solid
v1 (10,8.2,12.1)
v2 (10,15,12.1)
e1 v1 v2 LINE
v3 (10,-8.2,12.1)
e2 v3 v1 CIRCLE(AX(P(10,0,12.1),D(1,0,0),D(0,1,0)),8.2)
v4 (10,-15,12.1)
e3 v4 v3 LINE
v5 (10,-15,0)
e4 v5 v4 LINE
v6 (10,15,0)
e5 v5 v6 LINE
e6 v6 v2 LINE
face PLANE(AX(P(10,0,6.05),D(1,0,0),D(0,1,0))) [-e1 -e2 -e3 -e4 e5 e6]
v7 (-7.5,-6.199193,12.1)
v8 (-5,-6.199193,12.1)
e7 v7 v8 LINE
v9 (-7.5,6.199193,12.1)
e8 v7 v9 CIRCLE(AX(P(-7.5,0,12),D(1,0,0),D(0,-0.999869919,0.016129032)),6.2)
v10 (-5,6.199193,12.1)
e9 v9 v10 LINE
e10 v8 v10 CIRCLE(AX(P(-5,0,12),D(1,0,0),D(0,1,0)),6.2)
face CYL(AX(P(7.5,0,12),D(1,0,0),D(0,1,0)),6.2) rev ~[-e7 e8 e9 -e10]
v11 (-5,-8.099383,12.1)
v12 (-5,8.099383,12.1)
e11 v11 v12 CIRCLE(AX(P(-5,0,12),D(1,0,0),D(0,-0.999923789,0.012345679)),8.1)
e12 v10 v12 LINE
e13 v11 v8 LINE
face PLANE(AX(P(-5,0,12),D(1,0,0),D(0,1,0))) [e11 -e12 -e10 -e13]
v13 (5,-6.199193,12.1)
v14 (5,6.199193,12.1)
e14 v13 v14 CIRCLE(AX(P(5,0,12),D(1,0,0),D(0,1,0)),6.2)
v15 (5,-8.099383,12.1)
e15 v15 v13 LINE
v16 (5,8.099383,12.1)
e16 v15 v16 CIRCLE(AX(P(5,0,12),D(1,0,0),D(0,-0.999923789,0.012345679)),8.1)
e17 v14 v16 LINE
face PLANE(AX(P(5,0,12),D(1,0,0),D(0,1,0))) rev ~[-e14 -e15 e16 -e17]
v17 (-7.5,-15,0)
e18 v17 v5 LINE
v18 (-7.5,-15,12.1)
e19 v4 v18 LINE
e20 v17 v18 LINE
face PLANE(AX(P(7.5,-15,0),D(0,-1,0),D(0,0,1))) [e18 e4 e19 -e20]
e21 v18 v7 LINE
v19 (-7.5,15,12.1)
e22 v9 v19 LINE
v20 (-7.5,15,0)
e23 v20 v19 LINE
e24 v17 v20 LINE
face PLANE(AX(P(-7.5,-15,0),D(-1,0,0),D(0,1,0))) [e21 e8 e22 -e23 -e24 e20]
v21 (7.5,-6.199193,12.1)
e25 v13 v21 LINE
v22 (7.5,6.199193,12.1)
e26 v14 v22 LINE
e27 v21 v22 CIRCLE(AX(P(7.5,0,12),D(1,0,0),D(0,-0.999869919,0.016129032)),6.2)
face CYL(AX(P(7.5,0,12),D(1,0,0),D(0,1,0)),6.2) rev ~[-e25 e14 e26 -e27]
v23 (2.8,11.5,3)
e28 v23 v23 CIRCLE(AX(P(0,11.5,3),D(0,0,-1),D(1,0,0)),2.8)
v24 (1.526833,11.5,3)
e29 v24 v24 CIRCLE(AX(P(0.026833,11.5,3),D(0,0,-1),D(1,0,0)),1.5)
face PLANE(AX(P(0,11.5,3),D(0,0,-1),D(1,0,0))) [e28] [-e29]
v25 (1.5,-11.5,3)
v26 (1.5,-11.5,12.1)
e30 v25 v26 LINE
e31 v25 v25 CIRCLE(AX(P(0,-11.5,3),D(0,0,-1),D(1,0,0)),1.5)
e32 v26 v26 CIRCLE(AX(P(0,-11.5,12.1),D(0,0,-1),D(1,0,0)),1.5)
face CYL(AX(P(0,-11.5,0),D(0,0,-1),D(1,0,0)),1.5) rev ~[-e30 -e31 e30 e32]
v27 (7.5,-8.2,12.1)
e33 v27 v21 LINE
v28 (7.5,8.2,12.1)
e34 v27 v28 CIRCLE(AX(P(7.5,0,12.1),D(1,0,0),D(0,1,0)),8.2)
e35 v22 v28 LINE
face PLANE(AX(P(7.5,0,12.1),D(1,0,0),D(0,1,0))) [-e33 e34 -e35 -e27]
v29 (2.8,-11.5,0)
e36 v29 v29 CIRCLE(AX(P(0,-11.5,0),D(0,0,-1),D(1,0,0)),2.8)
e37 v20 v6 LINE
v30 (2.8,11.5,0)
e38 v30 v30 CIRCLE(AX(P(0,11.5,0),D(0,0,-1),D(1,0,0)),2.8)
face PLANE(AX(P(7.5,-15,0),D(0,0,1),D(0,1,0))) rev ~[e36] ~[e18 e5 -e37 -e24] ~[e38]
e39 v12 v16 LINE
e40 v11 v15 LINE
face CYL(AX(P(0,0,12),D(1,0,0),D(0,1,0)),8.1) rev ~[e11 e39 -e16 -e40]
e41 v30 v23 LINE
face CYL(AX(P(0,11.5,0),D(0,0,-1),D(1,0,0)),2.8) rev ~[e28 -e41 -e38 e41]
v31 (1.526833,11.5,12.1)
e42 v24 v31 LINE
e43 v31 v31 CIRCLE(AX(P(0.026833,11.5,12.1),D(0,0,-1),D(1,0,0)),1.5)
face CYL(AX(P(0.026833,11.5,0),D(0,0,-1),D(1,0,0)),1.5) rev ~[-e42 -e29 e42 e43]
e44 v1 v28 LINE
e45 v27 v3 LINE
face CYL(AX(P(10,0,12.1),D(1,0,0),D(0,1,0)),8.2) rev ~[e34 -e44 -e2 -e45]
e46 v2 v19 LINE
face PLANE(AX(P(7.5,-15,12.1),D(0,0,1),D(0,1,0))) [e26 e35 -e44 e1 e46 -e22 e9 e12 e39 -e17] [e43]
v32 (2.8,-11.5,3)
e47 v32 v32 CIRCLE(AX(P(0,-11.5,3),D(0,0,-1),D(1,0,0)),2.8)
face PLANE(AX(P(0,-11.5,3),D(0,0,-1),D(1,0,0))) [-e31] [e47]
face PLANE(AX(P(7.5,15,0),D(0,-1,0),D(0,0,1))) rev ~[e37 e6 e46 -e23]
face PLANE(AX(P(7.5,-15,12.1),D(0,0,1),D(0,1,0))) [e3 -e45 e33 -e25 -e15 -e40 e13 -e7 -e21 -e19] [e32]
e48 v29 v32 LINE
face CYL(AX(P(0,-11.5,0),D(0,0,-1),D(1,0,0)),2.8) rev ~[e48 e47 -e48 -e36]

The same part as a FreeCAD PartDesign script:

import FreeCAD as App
import Part
import Sketcher

V = App.Vector


def add_polygon(sketch, points):
    """Adds a closed chain of lines whose ends are joined by coincident constraints."""
    first, n = sketch.GeometryCount, len(points)
    for a, b in zip(points, points[1:] + points[:1]):
        sketch.addGeometry(Part.LineSegment(App.Vector(*a, 0), App.Vector(*b, 0)), False)
    for i in range(n):
        sketch.addConstraint(Sketcher.Constraint("Coincident", first + i, 2, first + (i + 1) % n, 1))

doc = App.newDocument("Part")
body = doc.addObject("PartDesign::Body", "Body")

# Sketch on YZ plane
sketch1 = body.newObject("Sketcher::SketchObject", "Sketch")
sketch1.AttachmentSupport = (doc.getObject("YZ_Plane"), [""])
sketch1.MapMode = "FlatFace"
sketch1.addGeometry(Part.Circle(V(0, 12, 0), V(0, 0, 1), 8.1), False)
sketch1.addConstraint([
    Sketcher.Constraint("PointOnObject", 0, 3, -2),
    Sketcher.Constraint("Diameter", 0, 16.2),
    Sketcher.Constraint("DistanceY", -1, 1, 0, 3, 12.0),
])
pad1 = body.newObject("PartDesign::Pad", "Pad")
pad1.Profile = sketch1
pad1.Length = 10
pad1.Midplane = True
body2 = doc.addObject("PartDesign::Body", "Body001")

# Sketch on XY plane
sketch2 = body2.newObject("Sketcher::SketchObject", "Sketch001")
sketch2.AttachmentSupport = (doc.getObject("XY_Plane001"), [""])
sketch2.MapMode = "FlatFace"
add_polygon(sketch2, [(-7.5, 15), (-7.5, -15), (7.5, -15), (7.5, 15)])  # lines 0-3
sketch2.addConstraint([
    Sketcher.Constraint("Vertical", 0),
    Sketcher.Constraint("Horizontal", 1),
    Sketcher.Constraint("Vertical", 2),
    Sketcher.Constraint("Horizontal", 3),
    Sketcher.Constraint("Symmetric", 0, 2, 2, 2, -1, 1),
    Sketcher.Constraint("DistanceX", 1, 1, 1, 2, 15.0),
    Sketcher.Constraint("DistanceY", 0, 2, 0, 1, 30.0),
])
pad2 = body2.newObject("PartDesign::Pad", "Pad001")
pad2.Profile = sketch2
pad2.Length = 12.1

# Sketch on YZ plane
sketch3 = body2.newObject("Sketcher::SketchObject", "Sketch002")
sketch3.AttachmentSupport = (doc.getObject("YZ_Plane001"), [""])
sketch3.MapMode = "FlatFace"
sketch3.AttachmentOffset = App.Placement(V(0, 0, 7.5), App.Rotation())
sketch3.addGeometry(Part.Circle(V(0, 12, 0), V(0, 0, 1), 6.2), False)
sketch3.addConstraint([
    Sketcher.Constraint("PointOnObject", 0, 3, -2),
    Sketcher.Constraint("Diameter", 0, 12.4),
    Sketcher.Constraint("DistanceY", -1, 1, 0, 3, 12.0),
])
pocket1 = body2.newObject("PartDesign::Pocket", "Pocket")
pocket1.Profile = sketch3
pocket1.Type = "ThroughAll"
doc.recompute()

boolean = body2.newObject("PartDesign::Boolean", "Boolean")
boolean.Type = "Cut"
boolean.addObjects([body])

# Sketch on XY plane
sketch4 = body2.newObject("Sketcher::SketchObject", "Sketch003")
sketch4.AttachmentSupport = (doc.getObject("XY_Plane001"), [""])
sketch4.MapMode = "FlatFace"
sketch4.addGeometry([
    Part.Circle(V(0.026833, 11.5, 0), V(0, 0, 1), 1.5),
    Part.Circle(V(0, -11.5, 0), V(0, 0, 1), 1.5),
], False)
sketch4.addConstraint([
    Sketcher.Constraint("Equal", 0, 1),
    Sketcher.Constraint("PointOnObject", 1, 3, -2),
    Sketcher.Constraint("Diameter", 0, 3.0),
    Sketcher.Constraint("DistanceY", 1, 3, 0, 3, 23.0),
    Sketcher.Constraint("DistanceY", -1, 1, 0, 3, 11.5),
    Sketcher.Constraint("DistanceX", -1, 1, 0, 3, 0.026833),
])
pocket2 = body2.newObject("PartDesign::Pocket", "Pocket001")
pocket2.Profile = sketch4
pocket2.Type = "ThroughAll"
pocket2.Reversed = True

# Sketch on XY plane
sketch5 = body2.newObject("Sketcher::SketchObject", "Sketch004")
sketch5.AttachmentSupport = (doc.getObject("XY_Plane001"), [""])
sketch5.MapMode = "FlatFace"
sketch5.addGeometry([
    Part.Circle(V(0, -11.5, 0), V(0, 0, 1), 2.8),
    Part.Circle(V(0, 11.5, 0), V(0, 0, 1), 2.8),
], False)
sketch5.addConstraint([
    Sketcher.Constraint("Equal", 0, 1),
    Sketcher.Constraint("Symmetric", 0, 3, 1, 3, -1, 1),
    Sketcher.Constraint("PointOnObject", 0, 3, -2),
    Sketcher.Constraint("Diameter", 0, 5.6),
    Sketcher.Constraint("DistanceY", 0, 3, 1, 3, 23.0),
])
pocket3 = body2.newObject("PartDesign::Pocket", "Pocket002")
pocket3.Profile = sketch5
pocket3.Length = 3
pocket3.Reversed = True

# Sketch on YZ plane
sketch6 = body2.newObject("Sketcher::SketchObject", "Sketch005")
sketch6.AttachmentSupport = (doc.getObject("YZ_Plane001"), [""])
sketch6.MapMode = "FlatFace"
sketch6.AttachmentOffset = App.Placement(V(0, 0, 7.5), App.Rotation())
add_polygon(sketch6, [(-15, 12.1), (-15, 0), (15, 0), (15, 12.1)])  # lines 0-3
sketch6.addConstraint([
    Sketcher.Constraint("Vertical", 0),
    Sketcher.Constraint("Horizontal", 1),
    Sketcher.Constraint("Vertical", 2),
    Sketcher.Constraint("Horizontal", 3),
    Sketcher.Constraint("Symmetric", 0, 2, 1, 2, -1, 1),
    Sketcher.Constraint("DistanceX", 1, 1, 1, 2, 30.0),
    Sketcher.Constraint("DistanceY", 0, 2, 0, 1, 12.1),
])
pad3 = body2.newObject("PartDesign::Pad", "Pad002")
pad3.Profile = sketch6
pad3.Length = 2.5

# Sketch on YZ plane
sketch7 = body2.newObject("Sketcher::SketchObject", "Sketch006")
sketch7.AttachmentSupport = (doc.getObject("YZ_Plane001"), [""])
sketch7.MapMode = "FlatFace"
sketch7.AttachmentOffset = App.Placement(V(0, 0, 10), App.Rotation())
sketch7.addGeometry(Part.Circle(V(0, 12.1, 0), V(0, 0, 1), 8.2), False)
sketch7.addConstraint([
    Sketcher.Constraint("PointOnObject", 0, 3, -2),
    Sketcher.Constraint("Diameter", 0, 16.4),
    Sketcher.Constraint("DistanceY", -1, 1, 0, 3, 12.1),
])
pocket4 = body2.newObject("PartDesign::Pocket", "Pocket003")
pocket4.Profile = sketch7
pocket4.Length = 2.5

doc.recompute()
